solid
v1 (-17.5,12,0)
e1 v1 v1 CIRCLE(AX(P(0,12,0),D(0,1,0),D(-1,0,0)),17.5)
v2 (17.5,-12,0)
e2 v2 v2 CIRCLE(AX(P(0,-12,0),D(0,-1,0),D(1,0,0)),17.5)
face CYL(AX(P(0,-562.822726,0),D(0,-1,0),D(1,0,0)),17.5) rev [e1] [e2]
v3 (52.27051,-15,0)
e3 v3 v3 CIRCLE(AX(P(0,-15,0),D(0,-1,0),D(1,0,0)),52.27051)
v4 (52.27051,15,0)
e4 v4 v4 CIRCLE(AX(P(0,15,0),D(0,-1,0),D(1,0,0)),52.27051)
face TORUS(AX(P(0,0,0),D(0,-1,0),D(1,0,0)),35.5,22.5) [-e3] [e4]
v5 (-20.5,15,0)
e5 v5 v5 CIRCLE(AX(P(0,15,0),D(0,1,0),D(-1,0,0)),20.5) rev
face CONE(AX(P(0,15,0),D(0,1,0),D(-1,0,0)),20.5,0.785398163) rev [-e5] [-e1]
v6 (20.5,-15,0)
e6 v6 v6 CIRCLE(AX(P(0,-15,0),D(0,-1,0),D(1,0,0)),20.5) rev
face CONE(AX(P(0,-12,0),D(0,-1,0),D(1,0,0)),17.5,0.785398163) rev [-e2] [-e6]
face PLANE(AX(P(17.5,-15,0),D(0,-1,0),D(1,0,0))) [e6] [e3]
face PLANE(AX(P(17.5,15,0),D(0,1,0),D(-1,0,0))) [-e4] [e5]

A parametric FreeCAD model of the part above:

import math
import FreeCAD as App
import Part
import Sketcher

V = App.Vector


def edges_at(feature, points):
    """Names of the edges that pass closest to the given points."""
    edges = feature.Shape.Edges
    near = lambda p: min(range(len(edges)), key=lambda i: edges[i].distToShape(Part.Vertex(*p))[0])
    return sorted({f"Edge{near(p) + 1}" for p in points})

doc = App.newDocument("Part")
params = doc.addObject("Spreadsheet::Sheet", "Params")
for row, (alias, value) in enumerate([
    ("sketch1_radius", "22.5 mm"),
    ("sketch1_height", "30 mm"),
    ("revolution_angle", "360 deg"),
    ("chamfer_size", "3 mm"),
], start=1):
    params.set(f"A{row}", alias)
    params.set(f"B{row}", "=" + value)
    params.setAlias(f"B{row}", alias)

body = doc.addObject("PartDesign::Body", "Body")

# Sketch on XY plane
sketch1 = doc.addObject("Sketcher::SketchObject", "Sketch")
body.addObject(sketch1)
sketch1.AttachmentSupport = (doc.XY_Plane, [""])
sketch1.MapMode = "FlatFace"
sketch1.addGeometry([
    Part.LineSegment(V(18, 15, 0), V(18, -15, 0)),
    Part.LineSegment(V(18, -15, 0), V(52, -15, 0)),
    Part.ArcOfCircle(Part.Circle(V(36, 0, 0), V(0, 0, 1), 22), math.radians(-42), math.radians(42)),
    Part.LineSegment(V(52, 15, 0), V(18, 15, 0)),
], False)
sketch1.addConstraint([
    Sketcher.Constraint("Coincident", 0, 2, 1, 1),
    Sketcher.Constraint("Coincident", 1, 2, 2, 1),
    Sketcher.Constraint("Coincident", 2, 2, 3, 1),
    Sketcher.Constraint("Coincident", 3, 2, 0, 1),
    Sketcher.Constraint("Vertical", 0),
    Sketcher.Constraint("Horizontal", 1),
    Sketcher.Constraint("Horizontal", 3),
    Sketcher.Constraint("Symmetric", 1, 2, 2, 2, -1),
    Sketcher.Constraint("Radius", 2, 22.5),
    Sketcher.Constraint("DistanceY", 0, 2, 0, 1, 30.0),
    Sketcher.Constraint("DistanceX", 0, 2, 2, 3, 18.0),
    Sketcher.Constraint("DistanceX", -1, 1, 2, 3, 35.5),
])
sketch1.setExpression("Constraints[8]", "Params.sketch1_radius")
sketch1.setExpression("Constraints[9]", "Params.sketch1_height")
revolution = doc.addObject("PartDesign::Revolution", "Revolution")
body.addObject(revolution)
revolution.Profile = sketch1
revolution.ReferenceAxis = (sketch1, ["V_Axis"])
revolution.setExpression("Angle", "Params.revolution_angle")
doc.recompute()

chamfer = doc.addObject("PartDesign::Chamfer", "Chamfer")
body.addObject(chamfer)
chamfer.Base = (revolution, edges_at(revolution, [(-17.5, 15, 0), (-17.5, -15, 0)]))
chamfer.setExpression("Size", "Params.chamfer_size")

doc.recompute()
